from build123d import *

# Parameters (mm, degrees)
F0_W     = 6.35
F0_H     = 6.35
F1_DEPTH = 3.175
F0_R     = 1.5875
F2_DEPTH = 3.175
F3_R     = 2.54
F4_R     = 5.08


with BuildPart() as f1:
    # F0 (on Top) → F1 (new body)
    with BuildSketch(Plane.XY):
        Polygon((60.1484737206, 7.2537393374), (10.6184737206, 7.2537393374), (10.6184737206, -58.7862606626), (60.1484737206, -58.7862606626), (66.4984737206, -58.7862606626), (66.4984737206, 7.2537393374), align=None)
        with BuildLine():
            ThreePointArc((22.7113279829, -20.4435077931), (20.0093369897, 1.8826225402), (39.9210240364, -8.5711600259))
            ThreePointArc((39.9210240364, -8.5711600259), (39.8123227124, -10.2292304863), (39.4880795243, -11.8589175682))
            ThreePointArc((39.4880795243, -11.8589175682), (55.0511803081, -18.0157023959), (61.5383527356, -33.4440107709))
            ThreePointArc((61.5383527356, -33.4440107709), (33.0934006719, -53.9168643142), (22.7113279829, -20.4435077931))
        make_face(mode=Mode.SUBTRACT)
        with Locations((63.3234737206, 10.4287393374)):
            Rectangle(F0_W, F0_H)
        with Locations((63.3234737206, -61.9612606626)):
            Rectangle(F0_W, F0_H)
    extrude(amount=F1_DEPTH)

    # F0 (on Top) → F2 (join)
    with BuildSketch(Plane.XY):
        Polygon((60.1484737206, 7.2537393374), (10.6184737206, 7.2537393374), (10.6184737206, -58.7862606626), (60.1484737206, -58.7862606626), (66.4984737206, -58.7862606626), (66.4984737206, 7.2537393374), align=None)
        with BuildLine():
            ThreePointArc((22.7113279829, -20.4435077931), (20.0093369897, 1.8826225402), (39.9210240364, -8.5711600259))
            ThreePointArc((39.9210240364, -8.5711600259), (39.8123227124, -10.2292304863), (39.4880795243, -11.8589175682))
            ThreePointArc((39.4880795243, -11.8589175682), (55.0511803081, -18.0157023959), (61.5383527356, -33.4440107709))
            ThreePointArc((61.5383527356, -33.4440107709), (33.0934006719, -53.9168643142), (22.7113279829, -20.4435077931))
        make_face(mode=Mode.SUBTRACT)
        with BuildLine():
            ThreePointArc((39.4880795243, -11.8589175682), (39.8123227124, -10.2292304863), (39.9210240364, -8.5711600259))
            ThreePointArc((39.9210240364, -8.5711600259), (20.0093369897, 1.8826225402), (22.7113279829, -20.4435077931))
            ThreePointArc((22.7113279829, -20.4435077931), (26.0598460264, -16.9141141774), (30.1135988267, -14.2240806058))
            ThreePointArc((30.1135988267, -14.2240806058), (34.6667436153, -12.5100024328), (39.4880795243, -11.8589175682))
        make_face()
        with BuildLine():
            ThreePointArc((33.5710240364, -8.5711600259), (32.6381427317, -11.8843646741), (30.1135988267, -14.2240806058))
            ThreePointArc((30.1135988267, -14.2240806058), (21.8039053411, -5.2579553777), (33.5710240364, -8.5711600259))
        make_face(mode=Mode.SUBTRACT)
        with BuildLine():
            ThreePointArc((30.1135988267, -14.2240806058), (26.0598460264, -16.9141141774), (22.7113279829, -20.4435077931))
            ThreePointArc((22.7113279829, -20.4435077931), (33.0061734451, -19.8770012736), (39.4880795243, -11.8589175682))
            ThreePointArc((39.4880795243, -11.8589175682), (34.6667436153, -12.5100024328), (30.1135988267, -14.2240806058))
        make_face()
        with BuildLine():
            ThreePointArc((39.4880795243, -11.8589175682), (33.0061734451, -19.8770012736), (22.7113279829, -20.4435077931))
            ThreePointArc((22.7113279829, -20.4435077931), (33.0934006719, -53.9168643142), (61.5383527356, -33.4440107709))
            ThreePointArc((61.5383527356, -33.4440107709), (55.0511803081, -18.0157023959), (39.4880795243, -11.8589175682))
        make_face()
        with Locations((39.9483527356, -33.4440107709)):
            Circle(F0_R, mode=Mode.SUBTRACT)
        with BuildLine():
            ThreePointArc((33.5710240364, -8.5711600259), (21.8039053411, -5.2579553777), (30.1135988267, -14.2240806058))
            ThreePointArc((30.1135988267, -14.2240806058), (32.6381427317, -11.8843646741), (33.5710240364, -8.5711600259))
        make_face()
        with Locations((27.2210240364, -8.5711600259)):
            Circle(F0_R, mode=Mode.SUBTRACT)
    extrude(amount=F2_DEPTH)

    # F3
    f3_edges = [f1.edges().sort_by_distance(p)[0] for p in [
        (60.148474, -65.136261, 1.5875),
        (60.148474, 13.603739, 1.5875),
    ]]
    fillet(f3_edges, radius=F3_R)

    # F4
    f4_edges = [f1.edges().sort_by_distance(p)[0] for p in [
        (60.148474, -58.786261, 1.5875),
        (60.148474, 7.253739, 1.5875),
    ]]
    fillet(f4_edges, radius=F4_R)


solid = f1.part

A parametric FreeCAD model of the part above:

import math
import FreeCAD as App
import Part
import Sketcher
from FreeCAD import Vector
Q = App.Units.Quantity


def edges_at(feature, points):
    """Names of the edges that pass closest to the given points."""
    edges = feature.Shape.Edges
    near = lambda p: min(range(len(edges)), key=lambda i: edges[i].distToShape(Part.Vertex(*p))[0])
    return sorted({f"Edge{near(p) + 1}" for p in points})


def add_polygon(sketch, points):
    """Adds a closed chain of lines whose ends are joined by coincident constraints."""
    first, n = sketch.GeometryCount, len(points)
    for a, b in zip(points, points[1:] + points[:1]):
        sketch.addGeometry(Part.LineSegment(App.Vector(*a, 0), App.Vector(*b, 0)), False)
    for i in range(n):
        sketch.addConstraint(Sketcher.Constraint("Coincident", first + i, 2, first + (i + 1) % n, 1))

doc = App.newDocument("Part")
body = doc.addObject("PartDesign::Body", "Body")

sketch1 = doc.addObject("Sketcher::SketchObject", "Sketch")
body.addObject(sketch1)
sketch1.AttachmentSupport = (doc.XY_Plane, [""])
sketch1.MapMode = "FlatFace"
add_polygon(sketch1, [(10.6, 7.3), (10.6, -58.8), (60.1, -58.8), (60.1, -65.1), (66.5, -65.1), (66.5, 13.6), (60.1, 13.6), (60.1, 7.3)])
sketch1.addGeometry(Part.ArcOfCircle(Part.Circle(Vector(39.9, -33.4, 0), Vector(0, 0, 1), 21.6), math.radians(143), math.radians(360)), False)
sketch1.addGeometry(Part.ArcOfCircle(Part.Circle(Vector(27.2, -8.6, 0), Vector(0, 0, 1), 12.7), math.radians(0), math.radians(249)), False)
sketch1.addGeometry(Part.ArcOfCircle(Part.Circle(Vector(27.2, -8.6, 0), Vector(0, 0, 1), 12.7), math.radians(-15), math.radians(0)), False)
sketch1.addGeometry(Part.ArcOfCircle(Part.Circle(Vector(39.9, -33.4, 0), Vector(0, 0, 1), 21.6), math.radians(0), math.radians(91)), False)
sketch1.addConstraint([
    Sketcher.Constraint("Coincident", 8, 1, 9, 2),
    Sketcher.Constraint("Tangent", 9, 1, 10, 2),
    Sketcher.Constraint("Coincident", 10, 1, 11, 2),
    Sketcher.Constraint("Tangent", 11, 1, 8, 2),
    Sketcher.Constraint("Vertical", 0),
    Sketcher.Constraint("Horizontal", 1),
    Sketcher.Constraint("Vertical", 2),
    Sketcher.Constraint("Horizontal", 3),
    Sketcher.Constraint("Vertical", 4),
    Sketcher.Constraint("Horizontal", 5),
    Sketcher.Constraint("Vertical", 6),
    Sketcher.Constraint("Horizontal", 7),
    Sketcher.Constraint("Equal", 9, 10),
    Sketcher.Constraint("Equal", 8, 11),
    Sketcher.Constraint("Horizontal", 10, 3, 9, 1),
    Sketcher.Constraint("Horizontal", 8, 3, 11, 1),
    Sketcher.Constraint("Vertical", 2, 2, 5, 2),
    Sketcher.Constraint("Equal", 5, 2),
    Sketcher.Constraint("Equal", 2, 6),
    Sketcher.Constraint("Radius", 9, Q("0.5 in")),
    Sketcher.Constraint("Radius", 8, Q("0.85 in")),
    Sketcher.Constraint("DistanceY", 0, 2, 0, 1, Q("2.6 in")),
    Sketcher.Constraint("DistanceY", 4, 1, 4, 2, Q("3.1 in")),
    Sketcher.Constraint("DistanceX", 1, 1, 1, 2, Q("1.95 in")),
    Sketcher.Constraint("DistanceY", 0, 2, 9, 3, Q("50.215101 mm")),
    Sketcher.Constraint("DistanceY", 8, 3, -1, 1, Q("33.444011 mm")),
    Sketcher.Constraint("DistanceY", 9, 3, -1, 1, Q("8.57116 mm")),
    Sketcher.Constraint("DistanceX", -1, 1, 10, 1, Q("39.48808 mm")),
    Sketcher.Constraint("DistanceX", 9, 3, 8, 3, Q("12.727329 mm")),
    Sketcher.Constraint("DistanceX", 0, 2, 8, 3, Q("29.329879 mm")),
])
pad1 = doc.addObject("PartDesign::Pad", "Pad")
body.addObject(pad1)
pad1.Profile = sketch1
pad1.Length = Q("0.125 in")

sketch2 = doc.addObject("Sketcher::SketchObject", "Sketch001")
body.addObject(sketch2)
sketch2.AttachmentSupport = (doc.XY_Plane, [""])
sketch2.MapMode = "FlatFace"
add_polygon(sketch2, [(10.6, 7.3), (10.6, -58.8), (66.5, -58.8), (66.5, 7.3)])
sketch2.addGeometry(Part.Circle(Vector(39.9, -33.4, 0), Vector(0, 0, 1), 1.6), False)
sketch2.addGeometry(Part.Circle(Vector(27.2, -8.6, 0), Vector(0, 0, 1), 1.6), False)
sketch2.addConstraint([
    Sketcher.Constraint("Vertical", 0),
    Sketcher.Constraint("Horizontal", 1),
    Sketcher.Constraint("Vertical", 2),
    Sketcher.Constraint("Horizontal", 3),
    Sketcher.Constraint("Equal", 4, 5),
    Sketcher.Constraint("Diameter", 4, Q("0.125 in")),
    Sketcher.Constraint("DistanceX", 1, 1, 1, 2, Q("2.2 in")),
    Sketcher.Constraint("DistanceY", 0, 2, 0, 1, Q("2.6 in")),
    Sketcher.Constraint("DistanceY", 0, 2, 5, 3, Q("50.215101 mm")),
    Sketcher.Constraint("DistanceY", 4, 3, -1, 1, Q("33.444011 mm")),
    Sketcher.Constraint("DistanceY", 5, 3, -1, 1, Q("8.57116 mm")),
    Sketcher.Constraint("DistanceX", 5, 3, 4, 3, Q("12.727329 mm")),
    Sketcher.Constraint("DistanceX", 0, 2, 4, 3, Q("29.329879 mm")),
    Sketcher.Constraint("DistanceX", -1, 1, 4, 3, Q("39.948353 mm")),
])
pad2 = doc.addObject("PartDesign::Pad", "Pad001")
body.addObject(pad2)
pad2.Profile = sketch2
pad2.Length = Q("0.125 in")
doc.recompute()

fillet = doc.addObject("PartDesign::Fillet", "Fillet")
body.addObject(fillet)
fillet.Base = (pad2, edges_at(pad2, [(60.148, -65.136, 1.587), (60.148, 13.604, 1.587)]))
fillet.Radius = Q("0.1 in")
doc.recompute()

fillet2 = doc.addObject("PartDesign::Fillet", "Fillet001")
body.addObject(fillet2)
fillet2.Base = (fillet, edges_at(fillet, [(60.148, -58.786, 1.587), (60.148, 7.254, 1.587)]))
fillet2.Radius = Q("0.2 in")

doc.recompute()
